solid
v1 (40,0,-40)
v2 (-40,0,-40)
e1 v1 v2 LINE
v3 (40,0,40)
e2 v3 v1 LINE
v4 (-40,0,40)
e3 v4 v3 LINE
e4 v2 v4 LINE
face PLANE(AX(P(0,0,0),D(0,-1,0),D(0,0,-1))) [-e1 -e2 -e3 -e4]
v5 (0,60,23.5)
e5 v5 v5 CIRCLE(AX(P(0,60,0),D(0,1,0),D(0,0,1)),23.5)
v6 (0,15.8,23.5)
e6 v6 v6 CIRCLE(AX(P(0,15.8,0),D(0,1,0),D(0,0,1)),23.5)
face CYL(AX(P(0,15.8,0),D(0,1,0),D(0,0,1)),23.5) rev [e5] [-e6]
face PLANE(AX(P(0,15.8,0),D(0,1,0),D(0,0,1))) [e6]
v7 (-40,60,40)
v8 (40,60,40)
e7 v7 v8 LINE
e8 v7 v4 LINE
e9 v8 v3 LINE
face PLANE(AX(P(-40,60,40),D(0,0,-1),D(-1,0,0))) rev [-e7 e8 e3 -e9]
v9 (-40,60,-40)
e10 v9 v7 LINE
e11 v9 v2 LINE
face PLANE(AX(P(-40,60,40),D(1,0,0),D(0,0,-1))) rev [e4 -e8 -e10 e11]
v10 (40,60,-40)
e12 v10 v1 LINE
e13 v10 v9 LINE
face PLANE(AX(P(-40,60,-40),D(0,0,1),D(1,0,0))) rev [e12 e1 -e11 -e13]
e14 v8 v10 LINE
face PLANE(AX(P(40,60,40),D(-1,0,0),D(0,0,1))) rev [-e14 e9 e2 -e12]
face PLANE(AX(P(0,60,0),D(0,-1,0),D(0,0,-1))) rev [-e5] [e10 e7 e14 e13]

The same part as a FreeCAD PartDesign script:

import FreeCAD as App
import Part
import Sketcher

V = App.Vector
Q = App.Units.Quantity

doc = App.newDocument("Part")
body = doc.addObject("PartDesign::Body", "Body")

# Sketch on XZ plane
sketch1 = body.newObject("Sketcher::SketchObject", "Sketch")
sketch1.AttachmentSupport = (doc.getObject("XZ_Plane"), [""])
sketch1.MapMode = "FlatFace"
sketch1.addGeometry([
    Part.LineSegment(V(-40, -40, 0), V(-40, 40, 0)),
    Part.LineSegment(V(-40, 40, 0), V(40, 40, 0)),
    Part.LineSegment(V(40, 40, 0), V(40, -40, 0)),
    Part.LineSegment(V(40, -40, 0), V(-40, -40, 0)),
], False)
sketch1.addConstraint([
    Sketcher.Constraint("Coincident", 0, 2, 1, 1),
    Sketcher.Constraint("Coincident", 1, 2, 2, 1),
    Sketcher.Constraint("Coincident", 2, 2, 3, 1),
    Sketcher.Constraint("Coincident", 3, 2, 0, 1),
    Sketcher.Constraint("Vertical", 0),
    Sketcher.Constraint("Horizontal", 1),
    Sketcher.Constraint("Vertical", 2),
    Sketcher.Constraint("Horizontal", 3),
    Sketcher.Constraint("Symmetric", 0, 2, 2, 2, -1, 1),
    Sketcher.Constraint("Equal", 3, 0),
    Sketcher.Constraint("DistanceX", 1, 1, 1, 2, Q("80 mm")),
])
pad1 = body.newObject("PartDesign::Pad", "Pad")
pad1.Profile = sketch1
pad1.Length = 60
pad1.Reversed = True

# Sketch on XZ plane
sketch2 = body.newObject("Sketcher::SketchObject", "Sketch001")
sketch2.AttachmentSupport = (doc.getObject("XZ_Plane"), [""])
sketch2.MapMode = "FlatFace"
sketch2.AttachmentOffset = App.Placement(V(0, 0, -60), App.Rotation())
sketch2.addGeometry(Part.Circle(V(0, 0, 0), V(0, 0, 1), 24), False)
sketch2.addConstraint([
    Sketcher.Constraint("Coincident", 0, 3, -1, 1),
    Sketcher.Constraint("Diameter", 0, Q("47 mm")),
])
pocket1 = body.newObject("PartDesign::Pocket", "Pocket")
pocket1.Profile = sketch2
pocket1.Length = 44.2
pocket1.Reversed = True

doc.recompute()
